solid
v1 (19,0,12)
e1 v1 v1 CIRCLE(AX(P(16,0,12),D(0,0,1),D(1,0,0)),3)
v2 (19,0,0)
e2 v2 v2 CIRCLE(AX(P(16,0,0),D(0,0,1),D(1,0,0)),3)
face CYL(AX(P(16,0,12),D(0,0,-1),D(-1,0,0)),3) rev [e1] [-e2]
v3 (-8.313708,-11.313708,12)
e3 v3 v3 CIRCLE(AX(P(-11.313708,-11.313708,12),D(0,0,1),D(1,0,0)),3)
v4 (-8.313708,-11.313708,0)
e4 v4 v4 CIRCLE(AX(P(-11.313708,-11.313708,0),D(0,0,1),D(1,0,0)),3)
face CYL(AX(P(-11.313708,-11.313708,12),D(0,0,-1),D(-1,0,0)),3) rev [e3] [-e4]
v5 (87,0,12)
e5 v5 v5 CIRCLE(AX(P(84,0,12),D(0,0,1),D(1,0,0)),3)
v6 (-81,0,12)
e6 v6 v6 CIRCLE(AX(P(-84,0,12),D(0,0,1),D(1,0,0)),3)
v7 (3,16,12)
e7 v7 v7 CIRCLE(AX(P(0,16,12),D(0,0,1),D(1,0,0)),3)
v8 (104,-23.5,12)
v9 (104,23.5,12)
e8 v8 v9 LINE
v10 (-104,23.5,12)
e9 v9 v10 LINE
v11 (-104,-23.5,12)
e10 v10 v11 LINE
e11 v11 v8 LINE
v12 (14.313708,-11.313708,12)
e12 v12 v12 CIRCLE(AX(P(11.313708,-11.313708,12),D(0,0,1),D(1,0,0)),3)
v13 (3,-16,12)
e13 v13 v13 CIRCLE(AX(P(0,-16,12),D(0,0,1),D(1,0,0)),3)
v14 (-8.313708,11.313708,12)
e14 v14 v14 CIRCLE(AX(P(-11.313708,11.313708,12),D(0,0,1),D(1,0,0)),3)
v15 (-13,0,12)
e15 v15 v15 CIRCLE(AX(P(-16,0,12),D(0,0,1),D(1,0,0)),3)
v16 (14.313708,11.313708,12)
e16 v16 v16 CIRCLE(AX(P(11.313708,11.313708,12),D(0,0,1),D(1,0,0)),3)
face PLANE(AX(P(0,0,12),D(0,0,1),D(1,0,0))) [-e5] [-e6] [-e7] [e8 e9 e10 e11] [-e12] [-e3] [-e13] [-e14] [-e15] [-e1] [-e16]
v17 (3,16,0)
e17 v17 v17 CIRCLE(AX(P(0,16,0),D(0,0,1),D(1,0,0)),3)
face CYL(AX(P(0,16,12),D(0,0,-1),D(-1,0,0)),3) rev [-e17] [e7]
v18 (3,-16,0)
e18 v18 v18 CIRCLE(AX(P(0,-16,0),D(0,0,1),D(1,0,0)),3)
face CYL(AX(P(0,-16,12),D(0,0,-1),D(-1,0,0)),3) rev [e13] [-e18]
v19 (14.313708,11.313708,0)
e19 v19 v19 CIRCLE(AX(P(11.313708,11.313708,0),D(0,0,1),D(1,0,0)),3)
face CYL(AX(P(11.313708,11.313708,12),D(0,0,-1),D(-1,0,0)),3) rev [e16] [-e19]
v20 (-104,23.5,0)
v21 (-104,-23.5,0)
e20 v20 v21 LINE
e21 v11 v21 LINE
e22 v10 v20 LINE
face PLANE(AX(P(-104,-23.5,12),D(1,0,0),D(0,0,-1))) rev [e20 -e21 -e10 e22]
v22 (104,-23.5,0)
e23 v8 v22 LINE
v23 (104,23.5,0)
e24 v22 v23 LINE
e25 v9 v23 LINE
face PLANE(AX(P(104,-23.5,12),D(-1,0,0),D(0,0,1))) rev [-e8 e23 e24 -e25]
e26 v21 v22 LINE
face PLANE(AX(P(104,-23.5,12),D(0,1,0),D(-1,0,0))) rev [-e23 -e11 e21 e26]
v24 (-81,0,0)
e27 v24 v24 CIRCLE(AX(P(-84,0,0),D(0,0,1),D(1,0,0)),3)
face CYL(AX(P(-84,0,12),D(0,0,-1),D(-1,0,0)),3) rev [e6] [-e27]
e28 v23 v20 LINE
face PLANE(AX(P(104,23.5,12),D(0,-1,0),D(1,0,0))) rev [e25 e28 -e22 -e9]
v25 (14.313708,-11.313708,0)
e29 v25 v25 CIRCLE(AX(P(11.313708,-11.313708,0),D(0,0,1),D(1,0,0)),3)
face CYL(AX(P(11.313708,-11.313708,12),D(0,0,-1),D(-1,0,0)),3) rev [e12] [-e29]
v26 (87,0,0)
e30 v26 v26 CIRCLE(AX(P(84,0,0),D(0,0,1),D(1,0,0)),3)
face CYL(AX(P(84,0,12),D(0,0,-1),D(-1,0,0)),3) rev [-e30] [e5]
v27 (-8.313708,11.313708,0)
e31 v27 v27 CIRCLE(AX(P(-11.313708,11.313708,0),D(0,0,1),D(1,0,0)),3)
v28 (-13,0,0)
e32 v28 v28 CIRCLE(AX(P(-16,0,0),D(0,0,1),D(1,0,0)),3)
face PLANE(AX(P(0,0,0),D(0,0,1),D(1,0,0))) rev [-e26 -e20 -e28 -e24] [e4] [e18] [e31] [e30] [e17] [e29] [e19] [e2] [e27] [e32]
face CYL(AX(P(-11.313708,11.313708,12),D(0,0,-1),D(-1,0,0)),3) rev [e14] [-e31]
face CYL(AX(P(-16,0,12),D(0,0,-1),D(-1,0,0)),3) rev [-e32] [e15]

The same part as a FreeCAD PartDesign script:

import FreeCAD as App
import Part
import Sketcher

V = App.Vector

doc = App.newDocument("Part")
params = doc.addObject("Spreadsheet::Sheet", "Params")
for row, (alias, value) in enumerate([
    ("sketch1_diameter", "6 mm"),
    ("sketch1_width", "208 mm"),
    ("sketch1_height", "47 mm"),
    ("pad1_length", "12 mm"),
], start=1):
    params.set(f"A{row}", alias)
    params.set(f"B{row}", "=" + value)
    params.setAlias(f"B{row}", alias)

body = doc.addObject("PartDesign::Body", "Body")

# Sketch on XY plane
sketch1 = doc.addObject("Sketcher::SketchObject", "Sketch")
body.addObject(sketch1)
sketch1.AttachmentSupport = (doc.XY_Plane, [""])
sketch1.MapMode = "FlatFace"
sketch1.addGeometry([
    Part.LineSegment(V(-104, 23.5, 0), V(-104, -23.5, 0)),  # 0
    Part.LineSegment(V(-104, -23.5, 0), V(104, -23.5, 0)),  # 1
    Part.LineSegment(V(104, -23.5, 0), V(104, 23.5, 0)),  # 2
    Part.LineSegment(V(104, 23.5, 0), V(-104, 23.5, 0)),  # 3
    Part.Circle(V(-11.3, -11.3, 0), V(0, 0, 1), 3),  # 4
    Part.Circle(V(0, -16, 0), V(0, 0, 1), 3),  # 5
    Part.Circle(V(11.3, -11.3, 0), V(0, 0, 1), 3),  # 6
    Part.Circle(V(-84, 0, 0), V(0, 0, 1), 3),  # 7
    Part.Circle(V(-16, 0, 0), V(0, 0, 1), 3),  # 8
    Part.Circle(V(-11.3, 11.3, 0), V(0, 0, 1), 3),  # 9
    Part.Circle(V(16, 0, 0), V(0, 0, 1), 3),  # 10
    Part.Circle(V(84, 0, 0), V(0, 0, 1), 3),  # 11
    Part.Circle(V(11.3, 11.3, 0), V(0, 0, 1), 3),  # 12
    Part.Circle(V(0, 16, 0), V(0, 0, 1), 3),  # 13
], False)
sketch1.addConstraint([
    Sketcher.Constraint("Coincident", 0, 2, 1, 1),
    Sketcher.Constraint("Coincident", 1, 2, 2, 1),
    Sketcher.Constraint("Coincident", 2, 2, 3, 1),
    Sketcher.Constraint("Coincident", 3, 2, 0, 1),
    Sketcher.Constraint("Vertical", 0),
    Sketcher.Constraint("Horizontal", 1),
    Sketcher.Constraint("Vertical", 2),
    Sketcher.Constraint("Horizontal", 3),
    Sketcher.Constraint("Equal", 4, 5),
    Sketcher.Constraint("Equal", 5, 6),
    Sketcher.Constraint("Equal", 6, 7),
    Sketcher.Constraint("Equal", 7, 8),
    Sketcher.Constraint("Equal", 8, 9),
    Sketcher.Constraint("Equal", 9, 10),
    Sketcher.Constraint("Equal", 10, 11),
    Sketcher.Constraint("Equal", 11, 12),
    Sketcher.Constraint("Equal", 12, 13),
    Sketcher.Constraint("Symmetric", 6, 3, 9, 3, -1, 1),
    Sketcher.Constraint("Symmetric", 8, 3, 10, 3, -1, 1),
    Sketcher.Constraint("Symmetric", 7, 3, 11, 3, -1, 1),
    Sketcher.Constraint("Symmetric", 4, 3, 12, 3, -1, 1),
    Sketcher.Constraint("Symmetric", 5, 3, 13, 3, -1, 1),
    Sketcher.Constraint("Symmetric", 0, 2, 2, 2, -1, 1),
    Sketcher.Constraint("Symmetric", 4, 3, 6, 3, -2),
    Sketcher.Constraint("PointOnObject", 5, 3, -2),
    Sketcher.Constraint("PointOnObject", 7, 3, -1),
    Sketcher.Constraint("PointOnObject", 8, 3, -1),
    Sketcher.Constraint("Diameter", 4, 6.0),
    Sketcher.Constraint("DistanceX", 1, 1, 1, 2, 208.0),
    Sketcher.Constraint("DistanceY", 0, 2, 0, 1, 47.0),
    Sketcher.Constraint("DistanceY", 5, 3, -1, 1, 16.0),
    Sketcher.Constraint("DistanceX", 7, 3, -1, 1, 84.0),
    Sketcher.Constraint("DistanceX", 8, 3, -1, 1, 16.0),
    Sketcher.Constraint("DistanceX", 4, 3, -1, 1, 11.313708),
    Sketcher.Constraint("DistanceY", 4, 3, -1, 1, 11.313708),
])
sketch1.setExpression("Constraints[27]", "Params.sketch1_diameter")
sketch1.setExpression("Constraints[28]", "Params.sketch1_width")
sketch1.setExpression("Constraints[29]", "Params.sketch1_height")
pad1 = doc.addObject("PartDesign::Pad", "Pad")
body.addObject(pad1)
pad1.Profile = sketch1
pad1.setExpression("Length", "Params.pad1_length")

doc.recompute()
